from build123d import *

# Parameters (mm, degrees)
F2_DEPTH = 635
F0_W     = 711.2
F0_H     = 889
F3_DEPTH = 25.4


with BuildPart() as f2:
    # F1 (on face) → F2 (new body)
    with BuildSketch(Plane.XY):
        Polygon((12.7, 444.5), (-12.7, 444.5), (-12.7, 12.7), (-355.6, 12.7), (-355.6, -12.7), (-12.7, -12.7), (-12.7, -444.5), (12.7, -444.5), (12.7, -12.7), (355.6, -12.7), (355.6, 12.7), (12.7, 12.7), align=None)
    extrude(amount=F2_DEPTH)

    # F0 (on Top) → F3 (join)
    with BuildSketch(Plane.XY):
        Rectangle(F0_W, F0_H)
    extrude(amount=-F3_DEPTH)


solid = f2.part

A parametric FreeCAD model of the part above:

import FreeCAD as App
import Part
import Sketcher
from FreeCAD import Vector
Q = App.Units.Quantity

doc = App.newDocument("Part")
params = doc.addObject("Spreadsheet::Sheet", "Params")
for row, (alias, value) in enumerate([
    ("sketch1_width", "1 in"),
    ("sketch1_height", "17 in"),
    ("sketch1_width2", "13.5 in"),
    ("pad1_length", "25 in"),
    ("sketch2_width", "28 in"),
    ("sketch2_height", "35 in"),
    ("pad2_length", "1 in"),
], start=1):
    params.set(f"A{row}", alias)
    params.set(f"B{row}", "=" + value)
    params.setAlias(f"B{row}", alias)

body = doc.addObject("PartDesign::Body", "Body")

# Sketch on XY plane
sketch1 = doc.addObject("Sketcher::SketchObject", "Sketch")
body.addObject(sketch1)
sketch1.AttachmentSupport = (doc.XY_Plane, [""])
sketch1.MapMode = "FlatFace"
sketch1.addGeometry([
    Part.LineSegment(Vector(13, 444, 0), Vector(-13, 444, 0)),  # 0
    Part.LineSegment(Vector(-13, 444, 0), Vector(-13, 13, 0)),  # 1
    Part.LineSegment(Vector(-13, 13, 0), Vector(-356, 13, 0)),  # 2
    Part.LineSegment(Vector(-356, 13, 0), Vector(-356, -13, 0)),  # 3
    Part.LineSegment(Vector(-356, -13, 0), Vector(-13, -13, 0)),  # 4
    Part.LineSegment(Vector(-13, -13, 0), Vector(-13, -444, 0)),  # 5
    Part.LineSegment(Vector(-13, -444, 0), Vector(13, -444, 0)),  # 6
    Part.LineSegment(Vector(13, -444, 0), Vector(13, -13, 0)),  # 7
    Part.LineSegment(Vector(13, -13, 0), Vector(356, -13, 0)),  # 8
    Part.LineSegment(Vector(356, -13, 0), Vector(356, 13, 0)),  # 9
    Part.LineSegment(Vector(356, 13, 0), Vector(13, 13, 0)),  # 10
    Part.LineSegment(Vector(13, 13, 0), Vector(13, 444, 0)),  # 11
], False)
sketch1.addConstraint([
    Sketcher.Constraint("Coincident", 0, 2, 1, 1),
    Sketcher.Constraint("Coincident", 1, 2, 2, 1),
    Sketcher.Constraint("Coincident", 2, 2, 3, 1),
    Sketcher.Constraint("Coincident", 3, 2, 4, 1),
    Sketcher.Constraint("Coincident", 4, 2, 5, 1),
    Sketcher.Constraint("Coincident", 5, 2, 6, 1),
    Sketcher.Constraint("Coincident", 6, 2, 7, 1),
    Sketcher.Constraint("Coincident", 7, 2, 8, 1),
    Sketcher.Constraint("Coincident", 8, 2, 9, 1),
    Sketcher.Constraint("Coincident", 9, 2, 10, 1),
    Sketcher.Constraint("Coincident", 10, 2, 11, 1),
    Sketcher.Constraint("Coincident", 11, 2, 0, 1),
    Sketcher.Constraint("Horizontal", 0),
    Sketcher.Constraint("Vertical", 1),
    Sketcher.Constraint("Horizontal", 2),
    Sketcher.Constraint("Vertical", 3),
    Sketcher.Constraint("Horizontal", 4),
    Sketcher.Constraint("Vertical", 5),
    Sketcher.Constraint("Horizontal", 6),
    Sketcher.Constraint("Vertical", 7),
    Sketcher.Constraint("Horizontal", 8),
    Sketcher.Constraint("Vertical", 9),
    Sketcher.Constraint("Horizontal", 10),
    Sketcher.Constraint("Vertical", 11),
    Sketcher.Constraint("Symmetric", 0, 2, 6, 2, -1, 1),
    Sketcher.Constraint("Symmetric", 2, 2, 8, 2, -1, 1),
    Sketcher.Constraint("Symmetric", 4, 2, 10, 2, -1, 1),
    Sketcher.Constraint("Symmetric", 4, 2, 7, 2, -2),
    Sketcher.Constraint("Equal", 6, 3),
    Sketcher.Constraint("DistanceX", 0, 2, 0, 1, Q("1 in")),
    Sketcher.Constraint("DistanceY", 1, 2, 1, 1, Q("17 in")),
    Sketcher.Constraint("DistanceX", 2, 2, 2, 1, Q("13.5 in")),
])
sketch1.setExpression("Constraints[29]", "Params.sketch1_width")
sketch1.setExpression("Constraints[30]", "Params.sketch1_height")
sketch1.setExpression("Constraints[31]", "Params.sketch1_width2")
pad1 = doc.addObject("PartDesign::Pad", "Pad")
body.addObject(pad1)
pad1.Profile = sketch1
pad1.setExpression("Length", "Params.pad1_length")

# Sketch on XY plane
sketch2 = doc.addObject("Sketcher::SketchObject", "Sketch001")
body.addObject(sketch2)
sketch2.AttachmentSupport = (doc.XY_Plane, [""])
sketch2.MapMode = "FlatFace"
sketch2.addGeometry([
    Part.LineSegment(Vector(-356, 444, 0), Vector(-356, -444, 0)),
    Part.LineSegment(Vector(-356, -444, 0), Vector(356, -444, 0)),
    Part.LineSegment(Vector(356, -444, 0), Vector(356, 444, 0)),
    Part.LineSegment(Vector(356, 444, 0), Vector(-356, 444, 0)),
], False)
sketch2.addConstraint([
    Sketcher.Constraint("Coincident", 0, 2, 1, 1),
    Sketcher.Constraint("Coincident", 1, 2, 2, 1),
    Sketcher.Constraint("Coincident", 2, 2, 3, 1),
    Sketcher.Constraint("Coincident", 3, 2, 0, 1),
    Sketcher.Constraint("Vertical", 0),
    Sketcher.Constraint("Horizontal", 1),
    Sketcher.Constraint("Vertical", 2),
    Sketcher.Constraint("Horizontal", 3),
    Sketcher.Constraint("Symmetric", 0, 2, 2, 2, -1, 1),
    Sketcher.Constraint("DistanceX", 1, 1, 1, 2, Q("28 in")),
    Sketcher.Constraint("DistanceY", 0, 2, 0, 1, Q("35 in")),
])
sketch2.setExpression("Constraints[9]", "Params.sketch2_width")
sketch2.setExpression("Constraints[10]", "Params.sketch2_height")
pad2 = doc.addObject("PartDesign::Pad", "Pad001")
body.addObject(pad2)
pad2.Profile = sketch2
pad2.setExpression("Length", "Params.pad2_length")
pad2.Reversed = True

doc.recompute()
